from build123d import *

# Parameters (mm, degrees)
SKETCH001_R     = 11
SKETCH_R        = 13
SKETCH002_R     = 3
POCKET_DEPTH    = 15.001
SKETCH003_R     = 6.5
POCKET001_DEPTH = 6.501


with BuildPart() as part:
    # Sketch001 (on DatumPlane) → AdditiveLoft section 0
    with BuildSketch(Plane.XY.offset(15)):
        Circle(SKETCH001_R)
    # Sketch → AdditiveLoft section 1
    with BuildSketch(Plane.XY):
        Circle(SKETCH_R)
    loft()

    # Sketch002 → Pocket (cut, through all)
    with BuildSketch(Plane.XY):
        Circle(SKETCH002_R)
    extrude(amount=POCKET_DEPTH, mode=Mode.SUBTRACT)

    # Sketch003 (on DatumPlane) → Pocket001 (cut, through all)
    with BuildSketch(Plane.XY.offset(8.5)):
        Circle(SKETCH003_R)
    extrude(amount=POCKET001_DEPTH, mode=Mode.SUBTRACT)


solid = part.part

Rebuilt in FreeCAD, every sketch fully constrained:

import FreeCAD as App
import Part
import Sketcher

V = App.Vector

doc = App.newDocument("Part")
body = doc.addObject("PartDesign::Body", "Body")

sketch1 = doc.addObject("Sketcher::SketchObject", "Sketch")
body.addObject(sketch1)
sketch1.AttachmentSupport = (doc.XY_Plane, [""])
sketch1.MapMode = "FlatFace"
sketch1.AttachmentOffset = App.Placement(V(0, 0, 15), App.Rotation())
sketch1.addGeometry(Part.Circle(V(0, 0, 0), V(0, 0, 1), 11), False)
sketch1.addConstraint([
    Sketcher.Constraint("Coincident", 0, 3, -1, 1),
    Sketcher.Constraint("Diameter", 0, 22.0),
])

sketch2 = doc.addObject("Sketcher::SketchObject", "Sketch001")
body.addObject(sketch2)
sketch2.AttachmentSupport = (doc.XY_Plane, [""])
sketch2.MapMode = "FlatFace"
sketch2.addGeometry(Part.Circle(V(0, 0, 0), V(0, 0, 1), 13), False)
sketch2.addConstraint([
    Sketcher.Constraint("Coincident", 0, 3, -1, 1),
    Sketcher.Constraint("Diameter", 0, 26.0),
])

additiveloft = doc.addObject("PartDesign::AdditiveLoft", "AdditiveLoft")
body.addObject(additiveloft)
additiveloft.Profile = sketch1
additiveloft.Sections = [sketch2]

sketch3 = doc.addObject("Sketcher::SketchObject", "Sketch002")
body.addObject(sketch3)
sketch3.AttachmentSupport = (doc.XY_Plane, [""])
sketch3.MapMode = "FlatFace"
sketch3.addGeometry(Part.Circle(V(0, 0, 0), V(0, 0, 1), 3), False)
sketch3.addConstraint([
    Sketcher.Constraint("Coincident", 0, 3, -1, 1),
    Sketcher.Constraint("Diameter", 0, 6.0),
])
pocket1 = doc.addObject("PartDesign::Pocket", "Pocket")
body.addObject(pocket1)
pocket1.Profile = sketch3
pocket1.Type = "ThroughAll"
pocket1.Reversed = True

sketch4 = doc.addObject("Sketcher::SketchObject", "Sketch003")
body.addObject(sketch4)
sketch4.AttachmentSupport = (doc.XY_Plane, [""])
sketch4.MapMode = "FlatFace"
sketch4.AttachmentOffset = App.Placement(V(0, 0, 8.5), App.Rotation())
sketch4.addGeometry(Part.Circle(V(0, 0, 0), V(0, 0, 1), 6), False)
sketch4.addConstraint([
    Sketcher.Constraint("Coincident", 0, 3, -1, 1),
    Sketcher.Constraint("Diameter", 0, 13.0),
])
pocket2 = doc.addObject("PartDesign::Pocket", "Pocket001")
body.addObject(pocket2)
pocket2.Profile = sketch4
pocket2.Type = "ThroughAll"
pocket2.Reversed = True

doc.recompute()
